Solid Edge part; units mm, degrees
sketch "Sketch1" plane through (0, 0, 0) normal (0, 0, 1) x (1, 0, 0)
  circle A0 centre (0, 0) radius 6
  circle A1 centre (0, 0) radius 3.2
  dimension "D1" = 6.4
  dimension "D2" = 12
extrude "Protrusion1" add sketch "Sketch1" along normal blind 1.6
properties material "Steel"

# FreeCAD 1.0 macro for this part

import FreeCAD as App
import Part
import Sketcher

V = App.Vector

doc = App.newDocument("Part")
body = doc.addObject("PartDesign::Body", "Body")

# Sketch on XY plane
sketch1 = body.newObject("Sketcher::SketchObject", "Sketch")
sketch1.AttachmentSupport = (doc.getObject("XY_Plane"), [""])
sketch1.MapMode = "FlatFace"
sketch1.addGeometry([
    Part.Circle(V(0, 0, 0), V(0, 0, 1), 6),
    Part.Circle(V(0, 0, 0), V(0, 0, 1), 3.2),
], False)
sketch1.addConstraint([
    Sketcher.Constraint("Coincident", 0, 3, -1, 1),
    Sketcher.Constraint("Coincident", 1, 3, -1, 1),
    Sketcher.Constraint("Diameter", 0, 12.0),
    Sketcher.Constraint("Diameter", 1, 6.4),
])
pad1 = body.newObject("PartDesign::Pad", "Pad")
pad1.Profile = sketch1
pad1.Length = 1.6

doc.recompute()
